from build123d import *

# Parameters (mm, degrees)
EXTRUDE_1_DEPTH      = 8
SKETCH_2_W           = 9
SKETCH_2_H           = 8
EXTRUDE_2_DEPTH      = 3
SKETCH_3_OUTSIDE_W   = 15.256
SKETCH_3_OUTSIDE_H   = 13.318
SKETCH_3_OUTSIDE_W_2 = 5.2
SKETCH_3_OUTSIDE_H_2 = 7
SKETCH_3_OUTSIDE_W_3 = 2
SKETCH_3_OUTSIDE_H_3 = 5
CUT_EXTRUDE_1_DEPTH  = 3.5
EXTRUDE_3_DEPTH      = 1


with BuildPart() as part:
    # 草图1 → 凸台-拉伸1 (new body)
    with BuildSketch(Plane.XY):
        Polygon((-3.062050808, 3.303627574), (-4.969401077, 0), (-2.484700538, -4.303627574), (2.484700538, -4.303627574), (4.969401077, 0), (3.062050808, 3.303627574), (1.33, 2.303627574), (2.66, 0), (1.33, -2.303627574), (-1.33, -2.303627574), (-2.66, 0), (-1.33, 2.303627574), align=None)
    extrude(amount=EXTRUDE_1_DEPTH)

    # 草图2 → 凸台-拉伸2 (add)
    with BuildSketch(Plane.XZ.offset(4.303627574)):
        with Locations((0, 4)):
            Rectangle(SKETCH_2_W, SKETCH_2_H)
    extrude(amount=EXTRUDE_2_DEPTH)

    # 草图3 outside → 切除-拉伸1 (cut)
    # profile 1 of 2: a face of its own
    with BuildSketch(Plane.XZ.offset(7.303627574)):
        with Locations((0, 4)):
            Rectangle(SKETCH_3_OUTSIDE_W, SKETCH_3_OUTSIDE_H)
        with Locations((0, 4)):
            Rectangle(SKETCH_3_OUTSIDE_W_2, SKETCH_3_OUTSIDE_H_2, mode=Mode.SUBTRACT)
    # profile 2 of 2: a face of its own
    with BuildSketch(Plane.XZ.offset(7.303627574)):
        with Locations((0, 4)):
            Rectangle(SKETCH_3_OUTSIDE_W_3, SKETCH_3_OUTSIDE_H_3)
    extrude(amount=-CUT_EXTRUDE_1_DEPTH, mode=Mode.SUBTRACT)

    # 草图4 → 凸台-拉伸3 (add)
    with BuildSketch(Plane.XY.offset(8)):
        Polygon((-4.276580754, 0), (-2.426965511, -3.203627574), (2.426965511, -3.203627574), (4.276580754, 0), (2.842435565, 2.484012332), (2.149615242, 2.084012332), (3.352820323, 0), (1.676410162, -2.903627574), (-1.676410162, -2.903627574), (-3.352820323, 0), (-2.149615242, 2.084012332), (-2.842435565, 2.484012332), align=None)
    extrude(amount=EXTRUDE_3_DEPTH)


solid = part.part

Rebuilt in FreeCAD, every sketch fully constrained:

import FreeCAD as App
import Part
import Sketcher

V = App.Vector
Q = App.Units.Quantity


def add_polygon(sketch, points):
    """Adds a closed chain of lines whose ends are joined by coincident constraints."""
    first, n = sketch.GeometryCount, len(points)
    for a, b in zip(points, points[1:] + points[:1]):
        sketch.addGeometry(Part.LineSegment(App.Vector(*a, 0), App.Vector(*b, 0)), False)
    for i in range(n):
        sketch.addConstraint(Sketcher.Constraint("Coincident", first + i, 2, first + (i + 1) % n, 1))

doc = App.newDocument("Part")
params = doc.addObject("Spreadsheet::Sheet", "Params")
for row, (alias, value) in enumerate([
    ("sketch1_length", "2 mm"),
    ("sketch1_width", "2.66 mm"),
    ("sketch1_length2", "2.66 mm"),
    ("pad1_length", "8 mm"),
    ("sketch2_width", "9 mm"),
    ("sketch2_height", "8 mm"),
    ("pad2_length", "3 mm"),
    ("sketch3_width", "2 mm"),
    ("sketch3_height", "7 mm"),
    ("sketch3_height2", "5 mm"),
    ("sketch3_width2", "5.2 mm"),
    ("pocket1_length", "3.5 mm"),
    ("sketch4_length", "0.8 mm"),
    ("pad3_length", "1 mm"),
], start=1):
    params.set(f"A{row}", alias)
    params.set(f"B{row}", "=" + value)
    params.setAlias(f"B{row}", alias)

body = doc.addObject("PartDesign::Body", "Body")

# Sketch on XY plane
sketch1 = body.newObject("Sketcher::SketchObject", "Sketch")
sketch1.AttachmentSupport = (doc.getObject("XY_Plane"), [""])
sketch1.MapMode = "FlatFace"
add_polygon(sketch1, [(-3.1, 3.3), (-5, 0), (-2.5, -4.3), (2.5, -4.3), (5, 0), (3.1, 3.3), (1.3, 2.3), (2.7, 0), (1.3, -2.3), (-1.3, -2.3), (-2.7, 0), (-1.3, 2.3)])  # lines 0-11
sketch1.addConstraint([
    Sketcher.Constraint("Horizontal", 2),
    Sketcher.Constraint("Horizontal", 8),
    Sketcher.Constraint("Symmetric", 0, 2, 3, 2, -1, 1),
    Sketcher.Constraint("Symmetric", 5, 2, 8, 2, -1, 1),
    Sketcher.Constraint("Symmetric", 6, 2, 9, 2, -1, 1),
    Sketcher.Constraint("Symmetric", 7, 2, 10, 2, -1, 1),
    Sketcher.Constraint("Symmetric", 4, 2, 11, 2, -2),
    Sketcher.Constraint("PointOnObject", 0, 2, -1),
    Sketcher.Constraint("PointOnObject", 6, 2, -1),
    Sketcher.Constraint("Parallel", 0, 3),
    Sketcher.Constraint("Parallel", 1, 4),
    Sketcher.Constraint("Perpendicular", 4, 5),
    Sketcher.Constraint("Perpendicular", 5, 6),
    Sketcher.Constraint("Parallel", 3, 7),
    Sketcher.Constraint("Angle", 0, Q("-120 deg")),
    Sketcher.Constraint("Distance", 5, 2.0),
    Sketcher.Constraint("DistanceY", 2, 2, 7, 2, 2.0),
    Sketcher.Constraint("DistanceX", 8, 2, 8, 1, 2.66),
    Sketcher.Constraint("Distance", 6, 2.66),
])
sketch1.setExpression("Constraints[27]", "Params.sketch1_length")
sketch1.setExpression("Constraints[29]", "Params.sketch1_width")
sketch1.setExpression("Constraints[30]", "Params.sketch1_length2")
pad1 = body.newObject("PartDesign::Pad", "Pad")
pad1.Profile = sketch1
pad1.setExpression("Length", "Params.pad1_length")

# Sketch on XZ plane
sketch2 = body.newObject("Sketcher::SketchObject", "Sketch001")
sketch2.AttachmentSupport = (doc.getObject("XZ_Plane"), [""])
sketch2.MapMode = "FlatFace"
sketch2.AttachmentOffset = App.Placement(V(0, 0, 4.303628), App.Rotation())
add_polygon(sketch2, [(-4, 8), (-4, 0), (4, 0), (4, 8)])  # lines 0-3
sketch2.addConstraint([
    Sketcher.Constraint("Vertical", 0),
    Sketcher.Constraint("Horizontal", 1),
    Sketcher.Constraint("Vertical", 2),
    Sketcher.Constraint("Horizontal", 3),
    Sketcher.Constraint("Symmetric", 0, 2, 1, 2, -1, 1),
    Sketcher.Constraint("DistanceX", 1, 1, 1, 2, 9.0),
    Sketcher.Constraint("DistanceY", 0, 2, 0, 1, 8.0),
])
sketch2.setExpression("Constraints[9]", "Params.sketch2_width")
sketch2.setExpression("Constraints[10]", "Params.sketch2_height")
pad2 = body.newObject("PartDesign::Pad", "Pad001")
pad2.Profile = sketch2
pad2.setExpression("Length", "Params.pad2_length")

# Sketch on XZ plane
sketch3 = body.newObject("Sketcher::SketchObject", "Sketch002")
sketch3.AttachmentSupport = (doc.getObject("XZ_Plane"), [""])
sketch3.MapMode = "FlatFace"
sketch3.AttachmentOffset = App.Placement(V(0, 0, 7.303628), App.Rotation())
add_polygon(sketch3, [(-7.6, 10.7), (-7.6, -2.7), (7.6, -2.7), (7.6, 10.7)])  # lines 0-3
add_polygon(sketch3, [(2.6, 0.5), (-2.6, 0.5), (-2.6, 7.5), (2.6, 7.5)])  # lines 4-7
add_polygon(sketch3, [(-1, 6.5), (-1, 1.5), (1, 1.5), (1, 6.5)])  # lines 8-11
sketch3.addConstraint([
    Sketcher.Constraint("Vertical", 0),
    Sketcher.Constraint("Horizontal", 1),
    Sketcher.Constraint("Vertical", 2),
    Sketcher.Constraint("Horizontal", 3),
    Sketcher.Constraint("Horizontal", 4),
    Sketcher.Constraint("Vertical", 5),
    Sketcher.Constraint("Horizontal", 6),
    Sketcher.Constraint("Vertical", 7),
    Sketcher.Constraint("Vertical", 8),
    Sketcher.Constraint("Horizontal", 9),
    Sketcher.Constraint("Vertical", 10),
    Sketcher.Constraint("Horizontal", 11),
    Sketcher.Constraint("DistanceX", 9, 1, 9, 2, 2.0),
    Sketcher.Constraint("DistanceY", 5, 1, 5, 2, 7.0),
    Sketcher.Constraint("DistanceY", 8, 2, 8, 1, 5.0),
    Sketcher.Constraint("DistanceX", 4, 2, 4, 1, 5.2),
    Sketcher.Constraint("DistanceX", 8, 2, -1, 1, 1.0),
    Sketcher.Constraint("DistanceY", 4, 2, 8, 2, 1.0),
    Sketcher.Constraint("DistanceX", 4, 2, -1, 1, 2.6),
    Sketcher.Constraint("DistanceY", -1, 1, 4, 2, 0.5),
    Sketcher.Constraint("DistanceX", 1, 1, 1, 2, 15.256),
    Sketcher.Constraint("DistanceY", 0, 2, 0, 1, 13.318),
    Sketcher.Constraint("DistanceX", 0, 2, -1, 1, 7.628),
    Sketcher.Constraint("DistanceY", 0, 2, -1, 1, 2.659),
])
sketch3.setExpression("Constraints[24]", "Params.sketch3_width")
sketch3.setExpression("Constraints[25]", "Params.sketch3_height")
sketch3.setExpression("Constraints[26]", "Params.sketch3_height2")
sketch3.setExpression("Constraints[27]", "Params.sketch3_width2")
pocket1 = body.newObject("PartDesign::Pocket", "Pocket")
pocket1.Profile = sketch3
pocket1.setExpression("Length", "Params.pocket1_length")

# Sketch on XY plane
sketch4 = body.newObject("Sketcher::SketchObject", "Sketch003")
sketch4.AttachmentSupport = (doc.getObject("XY_Plane"), [""])
sketch4.MapMode = "FlatFace"
sketch4.AttachmentOffset = App.Placement(V(0, 0, 8), App.Rotation())
add_polygon(sketch4, [(-4.3, 0), (-2.4, -3.2), (2.4, -3.2), (4.3, 0), (2.8, 2.5), (2.1, 2.1), (3.4, 0), (1.7, -2.9), (-1.7, -2.9), (-3.4, 0), (-2.1, 2.1), (-2.8, 2.5)])  # lines 0-11
sketch4.addConstraint([
    Sketcher.Constraint("Horizontal", 1),
    Sketcher.Constraint("Horizontal", 7),
    Sketcher.Constraint("Symmetric", 5, 2, 8, 2, -1, 1),
    Sketcher.Constraint("Symmetric", 2, 2, 11, 2, -1, 1),
    Sketcher.Constraint("Symmetric", 4, 2, 9, 2, -2),
    Sketcher.Constraint("Symmetric", 3, 2, 10, 2, -2),
    Sketcher.Constraint("PointOnObject", 2, 2, -1),
    Sketcher.Constraint("PointOnObject", 5, 2, -1),
    Sketcher.Constraint("Parallel", 0, 3),
    Sketcher.Constraint("Perpendicular", 3, 4),
    Sketcher.Constraint("Perpendicular", 4, 5),
    Sketcher.Constraint("Parallel", 2, 6),
    Sketcher.Constraint("Parallel", 5, 8),
    Sketcher.Constraint("Parallel", 6, 9),
    Sketcher.Constraint("Angle", 0, Q("-60 deg")),
    Sketcher.Constraint("Distance", 4, 0.8),
    Sketcher.Constraint("DistanceY", 1, 2, 6, 2, 0.3),
    Sketcher.Constraint("DistanceX", 1, 1, 1, 2, 4.853931),
    Sketcher.Constraint("DistanceX", 0, 2, 3, 2, 5.269401),
    Sketcher.Constraint("Distance", 0, 3.69923),
])
sketch4.setExpression("Constraints[27]", "Params.sketch4_length")
pad3 = body.newObject("PartDesign::Pad", "Pad002")
pad3.Profile = sketch4
pad3.setExpression("Length", "Params.pad3_length")

doc.recompute()
